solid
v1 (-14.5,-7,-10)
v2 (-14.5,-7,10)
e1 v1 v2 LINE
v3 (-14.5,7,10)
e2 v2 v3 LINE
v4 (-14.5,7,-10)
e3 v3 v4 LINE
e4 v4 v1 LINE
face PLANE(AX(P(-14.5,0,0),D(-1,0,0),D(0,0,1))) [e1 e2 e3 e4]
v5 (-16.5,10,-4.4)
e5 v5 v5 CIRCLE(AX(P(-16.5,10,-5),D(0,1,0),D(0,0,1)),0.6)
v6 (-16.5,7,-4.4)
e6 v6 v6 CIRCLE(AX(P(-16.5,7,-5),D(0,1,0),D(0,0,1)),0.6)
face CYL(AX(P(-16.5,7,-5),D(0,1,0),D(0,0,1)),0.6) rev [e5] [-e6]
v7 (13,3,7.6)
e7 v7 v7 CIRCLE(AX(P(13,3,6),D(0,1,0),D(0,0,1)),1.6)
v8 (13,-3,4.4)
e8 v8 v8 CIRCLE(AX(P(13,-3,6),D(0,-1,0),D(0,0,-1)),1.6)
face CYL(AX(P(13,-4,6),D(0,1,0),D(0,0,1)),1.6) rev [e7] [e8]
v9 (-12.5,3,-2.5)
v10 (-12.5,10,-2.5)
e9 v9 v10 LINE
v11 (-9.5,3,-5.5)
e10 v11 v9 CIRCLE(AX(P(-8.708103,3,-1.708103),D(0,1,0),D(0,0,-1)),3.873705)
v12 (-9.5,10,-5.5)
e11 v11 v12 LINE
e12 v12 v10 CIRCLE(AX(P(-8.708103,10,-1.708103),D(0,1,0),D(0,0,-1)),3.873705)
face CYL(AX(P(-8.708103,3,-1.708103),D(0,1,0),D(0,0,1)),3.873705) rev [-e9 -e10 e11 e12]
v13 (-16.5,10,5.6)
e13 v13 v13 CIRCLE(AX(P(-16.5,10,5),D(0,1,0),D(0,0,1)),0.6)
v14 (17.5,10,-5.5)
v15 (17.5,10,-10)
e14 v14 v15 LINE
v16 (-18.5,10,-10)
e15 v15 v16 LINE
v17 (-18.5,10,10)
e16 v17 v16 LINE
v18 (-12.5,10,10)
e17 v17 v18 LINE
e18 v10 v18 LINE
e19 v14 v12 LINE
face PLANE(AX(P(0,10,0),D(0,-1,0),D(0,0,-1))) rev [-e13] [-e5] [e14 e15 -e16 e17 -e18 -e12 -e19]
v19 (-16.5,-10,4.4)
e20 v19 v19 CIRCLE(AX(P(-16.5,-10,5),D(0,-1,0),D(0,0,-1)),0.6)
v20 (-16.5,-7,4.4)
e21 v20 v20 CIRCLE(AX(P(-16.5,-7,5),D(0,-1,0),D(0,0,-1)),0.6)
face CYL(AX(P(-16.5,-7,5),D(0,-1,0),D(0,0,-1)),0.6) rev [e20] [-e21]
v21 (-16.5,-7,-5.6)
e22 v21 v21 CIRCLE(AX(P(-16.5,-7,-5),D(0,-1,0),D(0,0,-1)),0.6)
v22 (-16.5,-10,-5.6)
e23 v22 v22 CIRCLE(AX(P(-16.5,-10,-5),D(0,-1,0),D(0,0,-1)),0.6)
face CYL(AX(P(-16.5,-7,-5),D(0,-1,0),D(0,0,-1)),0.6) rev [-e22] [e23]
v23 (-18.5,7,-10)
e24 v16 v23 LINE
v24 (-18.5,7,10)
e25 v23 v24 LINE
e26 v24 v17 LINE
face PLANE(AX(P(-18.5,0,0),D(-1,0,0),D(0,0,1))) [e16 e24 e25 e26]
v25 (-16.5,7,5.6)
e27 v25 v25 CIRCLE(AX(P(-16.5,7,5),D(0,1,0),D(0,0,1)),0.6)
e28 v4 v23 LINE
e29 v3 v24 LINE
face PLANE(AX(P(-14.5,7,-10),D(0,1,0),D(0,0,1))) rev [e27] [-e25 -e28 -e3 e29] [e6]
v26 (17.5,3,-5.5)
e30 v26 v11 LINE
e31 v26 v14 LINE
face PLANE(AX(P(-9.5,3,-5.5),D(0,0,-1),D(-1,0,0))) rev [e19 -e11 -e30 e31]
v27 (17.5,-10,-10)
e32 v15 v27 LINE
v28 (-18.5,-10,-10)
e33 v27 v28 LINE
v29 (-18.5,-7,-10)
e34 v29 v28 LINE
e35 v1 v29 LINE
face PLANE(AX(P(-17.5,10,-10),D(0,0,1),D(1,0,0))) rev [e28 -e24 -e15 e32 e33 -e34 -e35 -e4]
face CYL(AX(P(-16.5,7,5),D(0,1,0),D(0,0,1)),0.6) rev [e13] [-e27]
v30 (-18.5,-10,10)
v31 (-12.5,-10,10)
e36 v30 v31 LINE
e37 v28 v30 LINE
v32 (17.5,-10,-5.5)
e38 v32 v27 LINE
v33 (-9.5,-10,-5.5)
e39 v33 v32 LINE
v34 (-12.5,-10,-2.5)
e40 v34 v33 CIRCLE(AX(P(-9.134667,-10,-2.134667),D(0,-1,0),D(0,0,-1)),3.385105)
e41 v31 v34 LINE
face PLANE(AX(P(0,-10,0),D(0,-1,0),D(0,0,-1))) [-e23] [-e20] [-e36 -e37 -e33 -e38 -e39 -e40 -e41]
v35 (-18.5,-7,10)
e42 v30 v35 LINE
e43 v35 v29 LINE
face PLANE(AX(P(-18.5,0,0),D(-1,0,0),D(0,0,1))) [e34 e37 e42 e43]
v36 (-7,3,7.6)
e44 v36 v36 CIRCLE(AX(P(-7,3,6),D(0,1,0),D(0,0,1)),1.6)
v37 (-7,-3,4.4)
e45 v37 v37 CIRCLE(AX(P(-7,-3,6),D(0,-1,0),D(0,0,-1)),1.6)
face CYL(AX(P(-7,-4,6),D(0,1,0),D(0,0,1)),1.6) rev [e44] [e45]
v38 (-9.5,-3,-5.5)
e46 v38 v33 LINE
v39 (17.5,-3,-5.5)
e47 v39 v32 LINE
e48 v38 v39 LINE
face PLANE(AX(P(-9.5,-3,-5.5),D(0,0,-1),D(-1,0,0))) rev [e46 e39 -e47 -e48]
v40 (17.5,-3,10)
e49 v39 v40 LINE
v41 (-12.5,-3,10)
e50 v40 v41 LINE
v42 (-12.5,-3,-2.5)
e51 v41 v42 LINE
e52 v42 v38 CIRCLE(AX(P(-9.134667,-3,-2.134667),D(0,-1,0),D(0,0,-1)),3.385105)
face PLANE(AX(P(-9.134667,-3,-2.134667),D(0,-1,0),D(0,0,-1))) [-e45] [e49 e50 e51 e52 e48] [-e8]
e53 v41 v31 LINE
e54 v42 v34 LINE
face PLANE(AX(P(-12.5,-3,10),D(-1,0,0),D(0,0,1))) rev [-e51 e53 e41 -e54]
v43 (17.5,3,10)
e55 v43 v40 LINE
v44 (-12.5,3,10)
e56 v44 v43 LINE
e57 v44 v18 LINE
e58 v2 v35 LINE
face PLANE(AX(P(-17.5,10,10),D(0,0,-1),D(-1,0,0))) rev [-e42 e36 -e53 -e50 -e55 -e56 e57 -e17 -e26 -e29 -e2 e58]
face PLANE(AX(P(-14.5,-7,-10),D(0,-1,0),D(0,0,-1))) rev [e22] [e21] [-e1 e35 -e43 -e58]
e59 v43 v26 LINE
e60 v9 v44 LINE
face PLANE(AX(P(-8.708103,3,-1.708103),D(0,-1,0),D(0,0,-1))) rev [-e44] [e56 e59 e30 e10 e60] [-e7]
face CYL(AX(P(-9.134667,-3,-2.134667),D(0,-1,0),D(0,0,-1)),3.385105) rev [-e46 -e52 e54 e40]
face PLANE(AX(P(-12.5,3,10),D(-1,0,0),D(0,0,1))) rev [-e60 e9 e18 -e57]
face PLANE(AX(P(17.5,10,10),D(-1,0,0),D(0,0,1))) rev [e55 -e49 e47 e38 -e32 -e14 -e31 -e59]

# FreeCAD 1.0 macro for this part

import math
import FreeCAD as App
import Part
import Sketcher
from FreeCAD import Vector

doc = App.newDocument("Part")
body = doc.addObject("PartDesign::Body", "Body")

sketch1 = body.newObject("Sketcher::SketchObject", "Sketch")
sketch1.AttachmentSupport = (doc.getObject("XZ_Plane"), [""])
sketch1.MapMode = "FlatFace"
sketch1.addGeometry(Part.LineSegment(Vector(-18, -10, 0), Vector(-18, 10, 0)), False)
sketch1.addGeometry(Part.LineSegment(Vector(-18, 10, 0), Vector(18, 10, 0)), False)
sketch1.addGeometry(Part.LineSegment(Vector(18, 10, 0), Vector(18, -10, 0)), False)
sketch1.addGeometry(Part.LineSegment(Vector(18, -10, 0), Vector(-18, -10, 0)), False)
sketch1.addConstraint(Sketcher.Constraint("Coincident", 0, 2, 1, 1))
sketch1.addConstraint(Sketcher.Constraint("Coincident", 1, 2, 2, 1))
sketch1.addConstraint(Sketcher.Constraint("Coincident", 2, 2, 3, 1))
sketch1.addConstraint(Sketcher.Constraint("Coincident", 3, 2, 0, 1))
sketch1.addConstraint(Sketcher.Constraint("Vertical", 0))
sketch1.addConstraint(Sketcher.Constraint("Horizontal", 1))
sketch1.addConstraint(Sketcher.Constraint("Vertical", 2))
sketch1.addConstraint(Sketcher.Constraint("Horizontal", 3))
sketch1.addConstraint(Sketcher.Constraint("Symmetric", 0, 2, 2, 2, -1, 1))
sketch1.addConstraint(Sketcher.Constraint("DistanceX", 1, 1, 1, 2, 35.0))
sketch1.addConstraint(Sketcher.Constraint("DistanceY", 0, 1, 0, 2, 20.0))
pad1 = body.newObject("PartDesign::Pad", "Pad")
pad1.Profile = sketch1
pad1.Length = 20
pad1.Midplane = True

sketch2 = body.newObject("Sketcher::SketchObject", "Sketch001")
sketch2.AttachmentSupport = (doc.getObject("XZ_Plane"), [""])
sketch2.MapMode = "FlatFace"
sketch2.AttachmentOffset = App.Placement(Vector(0, 0, -10), App.Rotation())
sketch2.addGeometry(Part.LineSegment(Vector(-12.5, -2.5, 0), Vector(-12.5, 10, 0)), False)
sketch2.addGeometry(Part.LineSegment(Vector(-12.5, 10, 0), Vector(17.5, 10, 0)), False)
sketch2.addGeometry(Part.LineSegment(Vector(17.5, 10, 0), Vector(17.5, -5.5, 0)), False)
sketch2.addGeometry(Part.LineSegment(Vector(17.5, -5.5, 0), Vector(-9.5, -5.5, 0)), False)
sketch2.addGeometry(Part.ArcOfCircle(Part.Circle(Vector(-8.7, -1.7, 0), Vector(0, 0, 1), 3.9), math.radians(-168), math.radians(-102)), False)
sketch2.addConstraint(Sketcher.Constraint("Coincident", 0, 2, 1, 1))
sketch2.addConstraint(Sketcher.Constraint("Coincident", 1, 2, 2, 1))
sketch2.addConstraint(Sketcher.Constraint("Coincident", 2, 2, 3, 1))
sketch2.addConstraint(Sketcher.Constraint("Coincident", 3, 2, 4, 2))
sketch2.addConstraint(Sketcher.Constraint("Coincident", 4, 1, 0, 1))
sketch2.addConstraint(Sketcher.Constraint("Vertical", 0))
sketch2.addConstraint(Sketcher.Constraint("Horizontal", 1))
sketch2.addConstraint(Sketcher.Constraint("Vertical", 2))
sketch2.addConstraint(Sketcher.Constraint("Horizontal", 3))
sketch2.addConstraint(Sketcher.Constraint("DistanceX", 1, 1, 1, 2, 30.0))
sketch2.addConstraint(Sketcher.Constraint("DistanceX", 3, 2, 3, 1, 27.0))
sketch2.addConstraint(Sketcher.Constraint("DistanceY", 0, 1, 0, 2, 12.5))
sketch2.addConstraint(Sketcher.Constraint("DistanceY", 2, 2, 2, 1, 15.5))
sketch2.addConstraint(Sketcher.Constraint("DistanceY", -1, 1, 0, 2, 10.0))
sketch2.addConstraint(Sketcher.Constraint("DistanceX", 0, 2, -1, 1, 12.5))
sketch2.addConstraint(Sketcher.Constraint("Radius", 4, 3.873705))
pocket1 = body.newObject("PartDesign::Pocket", "Pocket")
pocket1.Profile = sketch2
pocket1.Length = 7
pocket1.Reversed = True

sketch3 = body.newObject("Sketcher::SketchObject", "Sketch002")
sketch3.AttachmentSupport = (doc.getObject("XZ_Plane"), [""])
sketch3.MapMode = "FlatFace"
sketch3.AttachmentOffset = App.Placement(Vector(0, 0, 10), App.Rotation())
sketch3.addGeometry(Part.LineSegment(Vector(-12.5, 10, 0), Vector(-12.5, -2.5, 0)), False)
sketch3.addGeometry(Part.ArcOfCircle(Part.Circle(Vector(-9.1, -2.1, 0), Vector(0, 0, 1), 3.4), math.radians(-174), math.radians(-96)), False)
sketch3.addGeometry(Part.LineSegment(Vector(-9.5, -5.5, 0), Vector(17.5, -5.5, 0)), False)
sketch3.addGeometry(Part.LineSegment(Vector(17.5, -5.5, 0), Vector(17.5, 10, 0)), False)
sketch3.addGeometry(Part.LineSegment(Vector(17.5, 10, 0), Vector(-12.5, 10, 0)), False)
sketch3.addConstraint(Sketcher.Constraint("Coincident", 0, 2, 1, 1))
sketch3.addConstraint(Sketcher.Constraint("Coincident", 1, 2, 2, 1))
sketch3.addConstraint(Sketcher.Constraint("Coincident", 2, 2, 3, 1))
sketch3.addConstraint(Sketcher.Constraint("Coincident", 3, 2, 4, 1))
sketch3.addConstraint(Sketcher.Constraint("Coincident", 4, 2, 0, 1))
sketch3.addConstraint(Sketcher.Constraint("Vertical", 0))
sketch3.addConstraint(Sketcher.Constraint("Horizontal", 2))
sketch3.addConstraint(Sketcher.Constraint("Vertical", 3))
sketch3.addConstraint(Sketcher.Constraint("Horizontal", 4))
sketch3.addConstraint(Sketcher.Constraint("DistanceX", 2, 1, 2, 2, 27.0))
sketch3.addConstraint(Sketcher.Constraint("DistanceX", 4, 2, 4, 1, 30.0))
sketch3.addConstraint(Sketcher.Constraint("DistanceY", 0, 2, 0, 1, 12.5))
sketch3.addConstraint(Sketcher.Constraint("DistanceY", 3, 1, 3, 2, 15.5))
sketch3.addConstraint(Sketcher.Constraint("DistanceY", -1, 1, 3, 2, 10.0))
sketch3.addConstraint(Sketcher.Constraint("DistanceX", 0, 2, -1, 1, 12.5))
sketch3.addConstraint(Sketcher.Constraint("Radius", 1, 3.385105))
pocket2 = body.newObject("PartDesign::Pocket", "Pocket001")
pocket2.Profile = sketch3
pocket2.Length = 7

sketch4 = body.newObject("Sketcher::SketchObject", "Sketch003")
sketch4.AttachmentSupport = (doc.getObject("XZ_Plane"), [""])
sketch4.MapMode = "FlatFace"
sketch4.AttachmentOffset = App.Placement(Vector(0, 0, -3), App.Rotation())
sketch4.addGeometry(Part.Circle(Vector(-7, 6, 0), Vector(0, 0, 1), 1.6), False)
sketch4.addGeometry(Part.Circle(Vector(13, 6, 0), Vector(0, 0, 1), 1.6), False)
sketch4.addConstraint(Sketcher.Constraint("Equal", 0, 1))
sketch4.addConstraint(Sketcher.Constraint("Horizontal", 0, 3, 1, 3))
sketch4.addConstraint(Sketcher.Constraint("Diameter", 0, 3.2))
sketch4.addConstraint(Sketcher.Constraint("DistanceX", 0, 3, -1, 1, 7.0))
sketch4.addConstraint(Sketcher.Constraint("DistanceY", -1, 1, 0, 3, 6.0))
sketch4.addConstraint(Sketcher.Constraint("DistanceX", -1, 1, 1, 3, 13.0))
pocket3 = body.newObject("PartDesign::Pocket", "Pocket002")
pocket3.Profile = sketch4
pocket3.Length = 7
pocket3.Reversed = True

sketch5 = body.newObject("Sketcher::SketchObject", "Sketch004")
sketch5.AttachmentSupport = (doc.getObject("YZ_Plane"), [""])
sketch5.MapMode = "FlatFace"
sketch5.AttachmentOffset = App.Placement(Vector(0, 0, -17.5), App.Rotation())
sketch5.addGeometry(Part.LineSegment(Vector(7, -10, 0), Vector(-7, -10, 0)), False)
sketch5.addGeometry(Part.LineSegment(Vector(-7, -10, 0), Vector(-7, 10, 0)), False)
sketch5.addGeometry(Part.LineSegment(Vector(-7, 10, 0), Vector(7, 10, 0)), False)
sketch5.addGeometry(Part.LineSegment(Vector(7, 10, 0), Vector(7, -10, 0)), False)
sketch5.addConstraint(Sketcher.Constraint("Coincident", 0, 2, 1, 1))
sketch5.addConstraint(Sketcher.Constraint("Coincident", 1, 2, 2, 1))
sketch5.addConstraint(Sketcher.Constraint("Coincident", 2, 2, 3, 1))
sketch5.addConstraint(Sketcher.Constraint("Coincident", 3, 2, 0, 1))
sketch5.addConstraint(Sketcher.Constraint("Horizontal", 0))
sketch5.addConstraint(Sketcher.Constraint("Vertical", 1))
sketch5.addConstraint(Sketcher.Constraint("Horizontal", 2))
sketch5.addConstraint(Sketcher.Constraint("Vertical", 3))
sketch5.addConstraint(Sketcher.Constraint("Symmetric", 0, 2, 2, 2, -1, 1))
sketch5.addConstraint(Sketcher.Constraint("DistanceX", 0, 2, 0, 1, 14.0))
sketch5.addConstraint(Sketcher.Constraint("DistanceY", 1, 1, 1, 2, 20.0))
pocket4 = body.newObject("PartDesign::Pocket", "Pocket003")
pocket4.Profile = sketch5
pocket4.Length = 3
pocket4.Reversed = True

sketch6 = body.newObject("Sketcher::SketchObject", "Sketch005")
sketch6.AttachmentSupport = (doc.getObject("XZ_Plane"), [""])
sketch6.MapMode = "FlatFace"
sketch6.AttachmentOffset = App.Placement(Vector(0, 0, -10), App.Rotation())
sketch6.addGeometry(Part.Circle(Vector(-16.5, -5, 0), Vector(0, 0, 1), 0.6), False)
sketch6.addGeometry(Part.Circle(Vector(-16.5, 5, 0), Vector(0, 0, 1), 0.6), False)
sketch6.addConstraint(Sketcher.Constraint("Equal", 0, 1))
sketch6.addConstraint(Sketcher.Constraint("Symmetric", 0, 3, 1, 3, -1))
sketch6.addConstraint(Sketcher.Constraint("Diameter", 0, 1.2))
sketch6.addConstraint(Sketcher.Constraint("DistanceY", 0, 3, -1, 1, 5.0))
sketch6.addConstraint(Sketcher.Constraint("DistanceX", 0, 3, -1, 1, 16.5))
pocket5 = body.newObject("PartDesign::Pocket", "Pocket004")
pocket5.Profile = sketch6
pocket5.Length = 3
pocket5.Reversed = True

sketch7 = body.newObject("Sketcher::SketchObject", "Sketch006")
sketch7.AttachmentSupport = (doc.getObject("XZ_Plane"), [""])
sketch7.MapMode = "FlatFace"
sketch7.AttachmentOffset = App.Placement(Vector(0, 0, 10), App.Rotation())
sketch7.addGeometry(Part.Circle(Vector(-16.5, 5, 0), Vector(0, 0, 1), 0.6), False)
sketch7.addGeometry(Part.Circle(Vector(-16.5, -5, 0), Vector(0, 0, 1), 0.6), False)
sketch7.addConstraint(Sketcher.Constraint("Equal", 0, 1))
sketch7.addConstraint(Sketcher.Constraint("Symmetric", 0, 3, 1, 3, -1))
sketch7.addConstraint(Sketcher.Constraint("Diameter", 0, 1.2))
sketch7.addConstraint(Sketcher.Constraint("DistanceY", -1, 1, 0, 3, 5.0))
sketch7.addConstraint(Sketcher.Constraint("DistanceX", 0, 3, -1, 1, 16.5))
pocket6 = body.newObject("PartDesign::Pocket", "Pocket005")
pocket6.Profile = sketch7
pocket6.Length = 3

sketch8 = body.newObject("Sketcher::SketchObject", "Sketch007")
sketch8.AttachmentSupport = (doc.getObject("YZ_Plane"), [""])
sketch8.MapMode = "FlatFace"
sketch8.AttachmentOffset = App.Placement(Vector(0, 0, -17.5), App.Rotation())
sketch8.addGeometry(Part.LineSegment(Vector(10, -10, 0), Vector(7, -10, 0)), False)
sketch8.addGeometry(Part.LineSegment(Vector(7, -10, 0), Vector(7, 10, 0)), False)
sketch8.addGeometry(Part.LineSegment(Vector(7, 10, 0), Vector(10, 10, 0)), False)
sketch8.addGeometry(Part.LineSegment(Vector(10, 10, 0), Vector(10, -10, 0)), False)
sketch8.addConstraint(Sketcher.Constraint("Coincident", 0, 2, 1, 1))
sketch8.addConstraint(Sketcher.Constraint("Coincident", 1, 2, 2, 1))
sketch8.addConstraint(Sketcher.Constraint("Coincident", 2, 2, 3, 1))
sketch8.addConstraint(Sketcher.Constraint("Coincident", 3, 2, 0, 1))
sketch8.addConstraint(Sketcher.Constraint("Horizontal", 0))
sketch8.addConstraint(Sketcher.Constraint("Vertical", 1))
sketch8.addConstraint(Sketcher.Constraint("Horizontal", 2))
sketch8.addConstraint(Sketcher.Constraint("Vertical", 3))
sketch8.addConstraint(Sketcher.Constraint("DistanceX", 0, 2, 0, 1, 3.0))
sketch8.addConstraint(Sketcher.Constraint("DistanceY", 1, 1, 1, 2, 20.0))
sketch8.addConstraint(Sketcher.Constraint("DistanceX", -1, 1, 0, 2, 7.0))
sketch8.addConstraint(Sketcher.Constraint("DistanceY", 0, 2, -1, 1, 10.0))
pad2 = body.newObject("PartDesign::Pad", "Pad001")
pad2.Profile = sketch8
pad2.Length = 1
pad2.Reversed = True

sketch9 = body.newObject("Sketcher::SketchObject", "Sketch008")
sketch9.AttachmentSupport = (doc.getObject("YZ_Plane"), [""])
sketch9.MapMode = "FlatFace"
sketch9.AttachmentOffset = App.Placement(Vector(0, 0, -17.5), App.Rotation())
sketch9.addGeometry(Part.LineSegment(Vector(-7, -10, 0), Vector(-10, -10, 0)), False)
sketch9.addGeometry(Part.LineSegment(Vector(-10, -10, 0), Vector(-10, 10, 0)), False)
sketch9.addGeometry(Part.LineSegment(Vector(-10, 10, 0), Vector(-7, 10, 0)), False)
sketch9.addGeometry(Part.LineSegment(Vector(-7, 10, 0), Vector(-7, -10, 0)), False)
sketch9.addConstraint(Sketcher.Constraint("Coincident", 0, 2, 1, 1))
sketch9.addConstraint(Sketcher.Constraint("Coincident", 1, 2, 2, 1))
sketch9.addConstraint(Sketcher.Constraint("Coincident", 2, 2, 3, 1))
sketch9.addConstraint(Sketcher.Constraint("Coincident", 3, 2, 0, 1))
sketch9.addConstraint(Sketcher.Constraint("Horizontal", 0))
sketch9.addConstraint(Sketcher.Constraint("Vertical", 1))
sketch9.addConstraint(Sketcher.Constraint("Horizontal", 2))
sketch9.addConstraint(Sketcher.Constraint("Vertical", 3))
sketch9.addConstraint(Sketcher.Constraint("DistanceX", 0, 2, 0, 1, 3.0))
sketch9.addConstraint(Sketcher.Constraint("DistanceY", 1, 1, 1, 2, 20.0))
sketch9.addConstraint(Sketcher.Constraint("DistanceX", 0, 2, -1, 1, 10.0))
sketch9.addConstraint(Sketcher.Constraint("DistanceY", 0, 2, -1, 1, 10.0))
pad3 = body.newObject("PartDesign::Pad", "Pad002")
pad3.Profile = sketch9
pad3.Length = 1
pad3.Reversed = True

doc.recompute()
